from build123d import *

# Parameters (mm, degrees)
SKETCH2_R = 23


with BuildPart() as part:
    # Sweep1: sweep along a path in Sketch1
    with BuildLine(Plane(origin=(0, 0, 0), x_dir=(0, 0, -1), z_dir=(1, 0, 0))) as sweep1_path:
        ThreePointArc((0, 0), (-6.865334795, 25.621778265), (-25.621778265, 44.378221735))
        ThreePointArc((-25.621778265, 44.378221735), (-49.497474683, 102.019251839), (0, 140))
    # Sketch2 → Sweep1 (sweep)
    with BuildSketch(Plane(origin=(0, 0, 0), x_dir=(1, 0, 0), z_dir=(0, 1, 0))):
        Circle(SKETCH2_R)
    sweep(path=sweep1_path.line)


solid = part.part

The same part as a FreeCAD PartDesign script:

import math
import FreeCAD as App
import Part
import Sketcher

V = App.Vector

doc = App.newDocument("Part")
params = doc.addObject("Spreadsheet::Sheet", "Params")
for row, (alias, value) in enumerate([
    ("sketch1_diameter", "46 mm"),
], start=1):
    params.set(f"A{row}", alias)
    params.set(f"B{row}", "=" + value)
    params.setAlias(f"B{row}", alias)

body = doc.addObject("PartDesign::Body", "Body")

# Sketch on XZ plane
sketch1 = doc.addObject("Sketcher::SketchObject", "Sketch")
body.addObject(sketch1)
sketch1.AttachmentSupport = (doc.XZ_Plane, [""])
sketch1.MapMode = "FlatFace"
sketch1.addGeometry(Part.Circle(V(0, 0, 0), V(0, 0, 1), 23), False)
sketch1.addConstraint([
    Sketcher.Constraint("Coincident", 0, 3, -1, 1),
    Sketcher.Constraint("Diameter", 0, 46.0),
])
sketch1.setExpression("Constraints[1]", "Params.sketch1_diameter")

# Sketch on YZ plane
sketch2 = doc.addObject("Sketcher::SketchObject", "Sketch001")
body.addObject(sketch2)
sketch2.AttachmentSupport = (doc.YZ_Plane, [""])
sketch2.MapMode = "FlatFace"
sketch2.addGeometry([
    Part.ArcOfCircle(Part.Circle(V(0, 51.243557, 0), V(0, 0, 1), 51.243557), math.radians(-90), math.radians(-30)),
    Part.ArcOfCircle(Part.Circle(V(88.756443, 0, 0), V(0, 0, 1), 51.243557), math.radians(0), math.radians(150)),
], False)
sketch2.addConstraint([
    Sketcher.Constraint("Tangent", 0, 2, 1, 2),
    Sketcher.Constraint("Coincident", 0, 1, -1, 1),
    Sketcher.Constraint("Equal", 0, 1),
    Sketcher.Constraint("PointOnObject", 0, 3, -2),
    Sketcher.Constraint("PointOnObject", 1, 3, -1),
    Sketcher.Constraint("PointOnObject", 1, 1, -1),
    Sketcher.Constraint("DistanceX", -1, 1, 1, 1, 140.0),
])
doc.recompute()

additivepipe = doc.addObject("PartDesign::AdditivePipe", "AdditivePipe")
body.addObject(additivepipe)
additivepipe.Profile = sketch1
additivepipe.Spine = (sketch2, ["Edge1", "Edge2"])

doc.recompute()
